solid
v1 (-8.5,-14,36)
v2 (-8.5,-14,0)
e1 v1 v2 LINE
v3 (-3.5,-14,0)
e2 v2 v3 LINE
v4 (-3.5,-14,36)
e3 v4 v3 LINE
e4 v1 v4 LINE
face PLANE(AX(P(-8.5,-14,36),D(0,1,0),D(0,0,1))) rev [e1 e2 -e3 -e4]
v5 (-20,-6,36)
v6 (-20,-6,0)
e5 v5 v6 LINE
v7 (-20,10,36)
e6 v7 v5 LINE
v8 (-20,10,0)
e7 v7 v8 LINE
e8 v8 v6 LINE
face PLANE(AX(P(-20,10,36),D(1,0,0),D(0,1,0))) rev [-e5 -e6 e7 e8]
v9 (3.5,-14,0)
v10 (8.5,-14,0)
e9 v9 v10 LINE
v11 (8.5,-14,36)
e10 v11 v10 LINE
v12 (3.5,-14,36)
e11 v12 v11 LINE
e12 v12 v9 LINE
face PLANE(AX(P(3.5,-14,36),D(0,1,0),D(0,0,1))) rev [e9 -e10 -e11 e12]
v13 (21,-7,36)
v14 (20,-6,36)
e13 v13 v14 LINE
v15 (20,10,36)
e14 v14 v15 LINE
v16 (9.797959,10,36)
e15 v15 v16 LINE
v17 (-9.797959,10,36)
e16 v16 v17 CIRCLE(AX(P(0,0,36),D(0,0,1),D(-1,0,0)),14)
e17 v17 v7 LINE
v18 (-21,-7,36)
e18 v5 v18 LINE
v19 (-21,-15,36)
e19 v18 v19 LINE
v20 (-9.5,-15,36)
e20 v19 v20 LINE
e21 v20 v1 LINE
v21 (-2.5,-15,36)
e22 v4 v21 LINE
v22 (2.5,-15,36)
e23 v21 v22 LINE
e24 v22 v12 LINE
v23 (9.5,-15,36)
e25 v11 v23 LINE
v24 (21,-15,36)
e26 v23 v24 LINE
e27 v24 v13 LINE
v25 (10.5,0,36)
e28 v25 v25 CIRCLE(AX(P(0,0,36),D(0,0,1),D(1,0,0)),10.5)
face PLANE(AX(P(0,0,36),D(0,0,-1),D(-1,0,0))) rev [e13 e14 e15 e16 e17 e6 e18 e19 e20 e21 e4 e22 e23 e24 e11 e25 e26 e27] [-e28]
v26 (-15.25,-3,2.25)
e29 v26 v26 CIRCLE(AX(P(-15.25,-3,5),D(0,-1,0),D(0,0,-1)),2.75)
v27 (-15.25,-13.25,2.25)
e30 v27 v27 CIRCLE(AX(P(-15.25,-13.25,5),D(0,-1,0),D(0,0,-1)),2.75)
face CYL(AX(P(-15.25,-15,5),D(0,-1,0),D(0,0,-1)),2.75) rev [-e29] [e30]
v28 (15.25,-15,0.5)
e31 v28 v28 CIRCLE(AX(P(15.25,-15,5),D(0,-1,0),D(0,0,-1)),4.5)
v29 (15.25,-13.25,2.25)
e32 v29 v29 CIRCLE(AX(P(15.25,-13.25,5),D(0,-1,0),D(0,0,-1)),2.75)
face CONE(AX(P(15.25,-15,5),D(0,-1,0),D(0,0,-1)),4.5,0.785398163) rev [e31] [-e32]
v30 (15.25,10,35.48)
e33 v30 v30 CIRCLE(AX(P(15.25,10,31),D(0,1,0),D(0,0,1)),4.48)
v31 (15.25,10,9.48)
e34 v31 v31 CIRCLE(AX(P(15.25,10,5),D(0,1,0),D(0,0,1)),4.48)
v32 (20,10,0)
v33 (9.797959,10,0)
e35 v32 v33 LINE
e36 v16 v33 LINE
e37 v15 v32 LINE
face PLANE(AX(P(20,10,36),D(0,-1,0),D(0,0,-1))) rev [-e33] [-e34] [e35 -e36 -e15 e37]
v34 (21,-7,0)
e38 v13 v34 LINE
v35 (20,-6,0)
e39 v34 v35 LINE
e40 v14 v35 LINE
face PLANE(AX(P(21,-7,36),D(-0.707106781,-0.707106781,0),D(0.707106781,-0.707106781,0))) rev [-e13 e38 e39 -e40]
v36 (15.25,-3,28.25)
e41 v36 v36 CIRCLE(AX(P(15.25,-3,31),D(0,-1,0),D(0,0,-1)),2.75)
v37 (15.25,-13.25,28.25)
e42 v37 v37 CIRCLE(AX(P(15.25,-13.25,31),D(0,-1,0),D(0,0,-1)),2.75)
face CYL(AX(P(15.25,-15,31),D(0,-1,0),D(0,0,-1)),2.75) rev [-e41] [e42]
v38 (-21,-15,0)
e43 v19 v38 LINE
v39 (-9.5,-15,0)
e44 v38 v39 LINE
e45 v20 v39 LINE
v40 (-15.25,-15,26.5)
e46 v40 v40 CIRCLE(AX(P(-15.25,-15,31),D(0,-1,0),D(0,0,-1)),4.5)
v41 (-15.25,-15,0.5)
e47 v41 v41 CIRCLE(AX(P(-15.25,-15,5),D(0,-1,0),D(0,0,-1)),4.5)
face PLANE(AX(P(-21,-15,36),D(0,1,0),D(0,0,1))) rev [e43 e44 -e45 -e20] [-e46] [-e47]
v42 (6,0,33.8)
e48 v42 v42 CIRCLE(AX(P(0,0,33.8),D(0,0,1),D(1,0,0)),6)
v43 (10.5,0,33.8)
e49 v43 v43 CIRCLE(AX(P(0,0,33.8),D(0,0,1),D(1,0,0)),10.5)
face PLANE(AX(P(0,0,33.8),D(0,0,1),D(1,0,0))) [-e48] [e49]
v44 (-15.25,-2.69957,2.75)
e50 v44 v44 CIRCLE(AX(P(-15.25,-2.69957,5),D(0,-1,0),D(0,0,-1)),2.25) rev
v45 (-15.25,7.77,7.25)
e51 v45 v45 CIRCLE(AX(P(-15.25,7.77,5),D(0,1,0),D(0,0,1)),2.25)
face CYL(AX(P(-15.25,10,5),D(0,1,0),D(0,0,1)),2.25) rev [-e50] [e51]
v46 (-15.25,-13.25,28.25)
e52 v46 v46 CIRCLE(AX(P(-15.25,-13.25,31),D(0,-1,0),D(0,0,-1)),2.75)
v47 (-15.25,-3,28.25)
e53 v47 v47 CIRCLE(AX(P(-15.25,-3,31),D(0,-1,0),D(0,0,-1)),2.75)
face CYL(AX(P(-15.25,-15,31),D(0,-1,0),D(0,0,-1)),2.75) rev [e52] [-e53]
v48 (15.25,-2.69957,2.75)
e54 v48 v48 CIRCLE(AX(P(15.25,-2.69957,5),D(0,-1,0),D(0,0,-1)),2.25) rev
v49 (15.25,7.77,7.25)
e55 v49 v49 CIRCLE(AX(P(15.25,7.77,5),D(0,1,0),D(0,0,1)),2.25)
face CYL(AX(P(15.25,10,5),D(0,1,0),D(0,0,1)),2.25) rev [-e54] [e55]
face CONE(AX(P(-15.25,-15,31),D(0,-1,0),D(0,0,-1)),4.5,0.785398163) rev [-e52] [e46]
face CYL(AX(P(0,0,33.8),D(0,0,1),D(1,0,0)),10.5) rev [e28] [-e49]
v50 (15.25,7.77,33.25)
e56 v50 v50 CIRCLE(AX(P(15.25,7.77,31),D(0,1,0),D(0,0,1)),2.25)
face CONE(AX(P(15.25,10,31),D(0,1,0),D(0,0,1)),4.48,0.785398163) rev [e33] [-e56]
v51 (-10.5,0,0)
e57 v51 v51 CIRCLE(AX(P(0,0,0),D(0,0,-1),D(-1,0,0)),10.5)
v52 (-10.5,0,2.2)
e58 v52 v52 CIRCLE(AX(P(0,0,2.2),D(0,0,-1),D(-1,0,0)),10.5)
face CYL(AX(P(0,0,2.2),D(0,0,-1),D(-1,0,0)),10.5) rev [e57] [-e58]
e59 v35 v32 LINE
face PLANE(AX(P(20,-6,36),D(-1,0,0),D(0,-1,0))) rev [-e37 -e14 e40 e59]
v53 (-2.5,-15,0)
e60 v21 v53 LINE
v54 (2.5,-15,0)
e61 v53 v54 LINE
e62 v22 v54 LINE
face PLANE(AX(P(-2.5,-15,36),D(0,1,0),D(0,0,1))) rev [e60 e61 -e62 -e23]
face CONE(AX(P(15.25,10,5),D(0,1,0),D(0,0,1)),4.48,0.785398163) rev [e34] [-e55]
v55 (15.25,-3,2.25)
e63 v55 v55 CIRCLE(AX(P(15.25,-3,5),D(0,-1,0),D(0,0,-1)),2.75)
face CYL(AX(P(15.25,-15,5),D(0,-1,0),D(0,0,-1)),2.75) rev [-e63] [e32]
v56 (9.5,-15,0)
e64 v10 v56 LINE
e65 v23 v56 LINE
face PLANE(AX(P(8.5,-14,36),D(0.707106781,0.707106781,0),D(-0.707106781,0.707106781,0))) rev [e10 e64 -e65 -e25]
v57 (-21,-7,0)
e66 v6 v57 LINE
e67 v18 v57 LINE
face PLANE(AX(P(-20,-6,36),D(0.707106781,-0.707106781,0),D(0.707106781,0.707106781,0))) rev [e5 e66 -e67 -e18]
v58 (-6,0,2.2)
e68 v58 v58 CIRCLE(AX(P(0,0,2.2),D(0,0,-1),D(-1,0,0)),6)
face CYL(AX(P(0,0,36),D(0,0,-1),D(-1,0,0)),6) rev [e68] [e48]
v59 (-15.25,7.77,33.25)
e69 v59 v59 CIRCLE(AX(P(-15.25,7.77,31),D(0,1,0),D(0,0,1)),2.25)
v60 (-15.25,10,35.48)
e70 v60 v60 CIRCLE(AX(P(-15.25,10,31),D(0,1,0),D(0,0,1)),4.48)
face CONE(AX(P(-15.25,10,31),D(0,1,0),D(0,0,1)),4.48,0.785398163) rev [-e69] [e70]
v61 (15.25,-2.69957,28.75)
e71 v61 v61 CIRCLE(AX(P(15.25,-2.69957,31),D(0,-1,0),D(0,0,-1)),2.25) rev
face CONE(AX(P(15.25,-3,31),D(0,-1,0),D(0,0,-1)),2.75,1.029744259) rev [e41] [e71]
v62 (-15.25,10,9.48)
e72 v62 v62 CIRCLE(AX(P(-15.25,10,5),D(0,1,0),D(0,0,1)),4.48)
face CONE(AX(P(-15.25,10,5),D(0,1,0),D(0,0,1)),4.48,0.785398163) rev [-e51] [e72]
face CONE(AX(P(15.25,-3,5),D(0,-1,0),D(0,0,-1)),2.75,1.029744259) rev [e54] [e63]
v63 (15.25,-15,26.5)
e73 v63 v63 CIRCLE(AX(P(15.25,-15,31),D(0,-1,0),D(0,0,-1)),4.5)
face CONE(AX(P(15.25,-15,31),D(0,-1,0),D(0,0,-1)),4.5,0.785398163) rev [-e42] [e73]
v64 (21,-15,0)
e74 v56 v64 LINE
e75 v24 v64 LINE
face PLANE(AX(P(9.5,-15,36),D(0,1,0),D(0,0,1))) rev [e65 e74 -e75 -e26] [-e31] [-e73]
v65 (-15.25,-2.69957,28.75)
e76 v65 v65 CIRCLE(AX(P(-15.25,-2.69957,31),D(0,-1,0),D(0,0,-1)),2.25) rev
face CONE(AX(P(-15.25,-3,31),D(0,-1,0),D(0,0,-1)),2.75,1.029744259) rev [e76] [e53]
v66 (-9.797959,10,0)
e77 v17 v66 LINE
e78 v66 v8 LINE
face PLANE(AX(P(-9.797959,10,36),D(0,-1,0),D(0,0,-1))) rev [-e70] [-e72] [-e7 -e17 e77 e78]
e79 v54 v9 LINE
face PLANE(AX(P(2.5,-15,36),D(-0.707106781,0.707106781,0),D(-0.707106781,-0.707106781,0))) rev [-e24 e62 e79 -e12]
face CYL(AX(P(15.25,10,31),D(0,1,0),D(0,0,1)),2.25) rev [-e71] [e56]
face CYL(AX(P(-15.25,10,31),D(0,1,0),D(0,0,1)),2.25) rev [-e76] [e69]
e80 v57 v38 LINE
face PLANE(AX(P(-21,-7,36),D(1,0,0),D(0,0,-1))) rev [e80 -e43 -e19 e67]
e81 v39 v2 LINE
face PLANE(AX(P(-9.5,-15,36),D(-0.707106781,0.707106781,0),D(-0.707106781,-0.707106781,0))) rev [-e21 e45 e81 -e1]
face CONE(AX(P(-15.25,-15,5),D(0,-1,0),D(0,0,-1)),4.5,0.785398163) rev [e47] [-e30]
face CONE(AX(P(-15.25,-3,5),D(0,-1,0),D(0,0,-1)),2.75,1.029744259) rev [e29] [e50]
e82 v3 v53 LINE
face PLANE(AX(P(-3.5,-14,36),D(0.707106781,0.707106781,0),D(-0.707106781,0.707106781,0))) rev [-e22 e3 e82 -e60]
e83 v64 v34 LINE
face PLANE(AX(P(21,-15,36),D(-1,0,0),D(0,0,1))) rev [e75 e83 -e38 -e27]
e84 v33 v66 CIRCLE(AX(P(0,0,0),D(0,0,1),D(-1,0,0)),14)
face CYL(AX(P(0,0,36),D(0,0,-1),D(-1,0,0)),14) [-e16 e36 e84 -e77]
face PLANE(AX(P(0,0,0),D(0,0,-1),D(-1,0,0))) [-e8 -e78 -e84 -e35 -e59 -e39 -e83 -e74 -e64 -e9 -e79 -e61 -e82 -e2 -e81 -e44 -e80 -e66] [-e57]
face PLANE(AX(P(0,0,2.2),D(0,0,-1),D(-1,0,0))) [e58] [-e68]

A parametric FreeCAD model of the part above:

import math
import FreeCAD as App
import Part
import Sketcher

V = App.Vector

doc = App.newDocument("Part")
params = doc.addObject("Spreadsheet::Sheet", "Params")
for row, (alias, value) in enumerate([
    ("sketch1_diameter", "12 mm"),
    ("sketch1_radius", "14 mm"),
    ("sketch1_width", "5 mm"),
    ("sketch1_height", "16 mm"),
    ("sketch1_height2", "8 mm"),
    ("pad1_length", "36 mm"),
    ("sketch2_diameter", "21 mm"),
    ("pocket1_length", "2.2 mm"),
    ("sketch3_diameter", "21 mm"),
    ("pocket2_length", "2.2 mm"),
    ("sketch4_diameter", "3.3 mm"),
    ("sketch5_diameter", "5.5 mm"),
    ("hole_diameter", "5.5 mm"),
    ("hole_depth", "12 mm"),
    ("hole_csink_diameter", "9 mm"),
    ("sketch6_diameter", "4.5 mm"),
    ("hole2_diameter", "4.5 mm"),
    ("hole2_csink_diameter", "8.96 mm"),
], start=1):
    params.set(f"A{row}", alias)
    params.set(f"B{row}", "=" + value)
    params.setAlias(f"B{row}", alias)

body = doc.addObject("PartDesign::Body", "Body")

# Sketch on XY plane
sketch1 = body.newObject("Sketcher::SketchObject", "Sketch")
sketch1.AttachmentSupport = (doc.getObject("XY_Plane"), [""])
sketch1.MapMode = "FlatFace"
sketch1.addGeometry([
    Part.LineSegment(V(-20, 10, 0), V(-20, -6, 0)),  # 0
    Part.LineSegment(V(-20, -6, 0), V(-21, -7, 0)),  # 1
    Part.LineSegment(V(-21, -7, 0), V(-21, -15, 0)),  # 2
    Part.LineSegment(V(-21, -15, 0), V(-9.5, -15, 0)),  # 3
    Part.LineSegment(V(-9.5, -15, 0), V(-8.5, -14, 0)),  # 4
    Part.LineSegment(V(-8.5, -14, 0), V(-3.5, -14, 0)),  # 5
    Part.LineSegment(V(-3.5, -14, 0), V(-2.5, -15, 0)),  # 6
    Part.LineSegment(V(-2.5, -15, 0), V(2.5, -15, 0)),  # 7
    Part.LineSegment(V(2.5, -15, 0), V(3.5, -14, 0)),  # 8
    Part.LineSegment(V(3.5, -14, 0), V(8.5, -14, 0)),  # 9
    Part.LineSegment(V(8.5, -14, 0), V(9.5, -15, 0)),  # 10
    Part.LineSegment(V(9.5, -15, 0), V(21, -15, 0)),  # 11
    Part.LineSegment(V(21, -15, 0), V(21, -7, 0)),  # 12
    Part.LineSegment(V(21, -7, 0), V(20, -6, 0)),  # 13
    Part.LineSegment(V(20, -6, 0), V(20, 10, 0)),  # 14
    Part.LineSegment(V(20, 10, 0), V(9.8, 10, 0)),  # 15
    Part.ArcOfCircle(Part.Circle(V(0, 0, 0), V(0, 0, 1), 14), math.radians(46), math.radians(134)),  # 16
    Part.LineSegment(V(-9.8, 10, 0), V(-20, 10, 0)),  # 17
    Part.Circle(V(0, 0, 0), V(0, 0, 1), 6),  # 18
], False)
sketch1.addConstraint([
    Sketcher.Constraint("Coincident", 0, 2, 1, 1),
    Sketcher.Constraint("Coincident", 1, 2, 2, 1),
    Sketcher.Constraint("Coincident", 2, 2, 3, 1),
    Sketcher.Constraint("Coincident", 3, 2, 4, 1),
    Sketcher.Constraint("Coincident", 4, 2, 5, 1),
    Sketcher.Constraint("Coincident", 5, 2, 6, 1),
    Sketcher.Constraint("Coincident", 6, 2, 7, 1),
    Sketcher.Constraint("Coincident", 7, 2, 8, 1),
    Sketcher.Constraint("Coincident", 8, 2, 9, 1),
    Sketcher.Constraint("Coincident", 9, 2, 10, 1),
    Sketcher.Constraint("Coincident", 10, 2, 11, 1),
    Sketcher.Constraint("Coincident", 11, 2, 12, 1),
    Sketcher.Constraint("Coincident", 12, 2, 13, 1),
    Sketcher.Constraint("Coincident", 13, 2, 14, 1),
    Sketcher.Constraint("Coincident", 14, 2, 15, 1),
    Sketcher.Constraint("Coincident", 15, 2, 16, 1),
    Sketcher.Constraint("Coincident", 16, 2, 17, 1),
    Sketcher.Constraint("Coincident", 17, 2, 0, 1),
    Sketcher.Constraint("Vertical", 0),
    Sketcher.Constraint("Vertical", 2),
    Sketcher.Constraint("Horizontal", 3),
    Sketcher.Constraint("Horizontal", 5),
    Sketcher.Constraint("Horizontal", 7),
    Sketcher.Constraint("Horizontal", 9),
    Sketcher.Constraint("Horizontal", 11),
    Sketcher.Constraint("Vertical", 12),
    Sketcher.Constraint("Vertical", 14),
    Sketcher.Constraint("Horizontal", 15),
    Sketcher.Constraint("Horizontal", 17),
    Sketcher.Constraint("Coincident", 16, 3, -1, 1),
    Sketcher.Constraint("Coincident", 18, 3, -1, 1),
    Sketcher.Constraint("Symmetric", 5, 2, 8, 2, -2),
    Sketcher.Constraint("Symmetric", 3, 2, 10, 2, -2),
    Sketcher.Constraint("Symmetric", 1, 2, 12, 2, -2),
    Sketcher.Constraint("Symmetric", 0, 2, 13, 2, -2),
    Sketcher.Constraint("Parallel", 1, 4),
    Sketcher.Constraint("Perpendicular", 4, 6),
    Sketcher.Constraint("Perpendicular", 6, 8),
    Sketcher.Constraint("Perpendicular", 8, 10),
    Sketcher.Constraint("Parallel", 10, 13),
    Sketcher.Constraint("Horizontal", 3, 2, 6, 2),
    Sketcher.Constraint("Horizontal", 15, 2, 16, 2),
    Sketcher.Constraint("Equal", 5, 7),
    Sketcher.Constraint("Equal", 1, 4),
    Sketcher.Constraint("Diameter", 18, 12.0),
    Sketcher.Constraint("Radius", 16, 14.0),
    Sketcher.Constraint("DistanceX", 5, 1, 5, 2, 5.0),
    Sketcher.Constraint("DistanceY", 0, 2, 0, 1, 16.0),
    Sketcher.Constraint("DistanceY", 2, 2, 2, 1, 8.0),
    Sketcher.Constraint("DistanceX", 3, 1, 3, 2, 11.5),
    Sketcher.Constraint("DistanceX", 0, 2, -1, 1, 20.0),
    Sketcher.Constraint("DistanceY", 0, 2, -1, 1, 6.0),
])
sketch1.setExpression("Constraints[44]", "Params.sketch1_diameter")
sketch1.setExpression("Constraints[45]", "Params.sketch1_radius")
sketch1.setExpression("Constraints[46]", "Params.sketch1_width")
sketch1.setExpression("Constraints[47]", "Params.sketch1_height")
sketch1.setExpression("Constraints[48]", "Params.sketch1_height2")
pad1 = body.newObject("PartDesign::Pad", "Pad")
pad1.Profile = sketch1
pad1.setExpression("Length", "Params.pad1_length")

# Sketch on XY plane
sketch2 = body.newObject("Sketcher::SketchObject", "Sketch001")
sketch2.AttachmentSupport = (doc.getObject("XY_Plane"), [""])
sketch2.MapMode = "FlatFace"
sketch2.AttachmentOffset = App.Placement(V(0, 0, 36), App.Rotation())
sketch2.addGeometry(Part.Circle(V(0, 0, 0), V(0, 0, 1), 10), False)
sketch2.addConstraint([
    Sketcher.Constraint("Coincident", 0, 3, -1, 1),
    Sketcher.Constraint("Diameter", 0, 21.0),
])
sketch2.setExpression("Constraints[1]", "Params.sketch2_diameter")
pocket1 = body.newObject("PartDesign::Pocket", "Pocket")
pocket1.Profile = sketch2
pocket1.setExpression("Length", "Params.pocket1_length")

# Sketch on XY plane
sketch3 = body.newObject("Sketcher::SketchObject", "Sketch002")
sketch3.AttachmentSupport = (doc.getObject("XY_Plane"), [""])
sketch3.MapMode = "FlatFace"
sketch3.addGeometry(Part.Circle(V(0, 0, 0), V(0, 0, 1), 10), False)
sketch3.addConstraint([
    Sketcher.Constraint("Coincident", 0, 3, -1, 1),
    Sketcher.Constraint("Diameter", 0, 21.0),
])
sketch3.setExpression("Constraints[1]", "Params.sketch3_diameter")
pocket2 = body.newObject("PartDesign::Pocket", "Pocket001")
pocket2.Profile = sketch3
pocket2.setExpression("Length", "Params.pocket2_length")
pocket2.Reversed = True

# Sketch on XZ plane
sketch4 = body.newObject("Sketcher::SketchObject", "Sketch003")
sketch4.AttachmentSupport = (doc.getObject("XZ_Plane"), [""])
sketch4.MapMode = "FlatFace"
sketch4.AttachmentOffset = App.Placement(V(0, 0, -10), App.Rotation())
sketch4.addGeometry([
    Part.Circle(V(15.2, 5, 0), V(0, 0, 1), 1.6),
    Part.Circle(V(15.2, 31, 0), V(0, 0, 1), 1.6),
    Part.Circle(V(-15.2, 5, 0), V(0, 0, 1), 1.6),
    Part.Circle(V(-15.2, 31, 0), V(0, 0, 1), 1.6),
], False)
sketch4.addConstraint([
    Sketcher.Constraint("Equal", 0, 1),
    Sketcher.Constraint("Equal", 1, 2),
    Sketcher.Constraint("Equal", 2, 3),
    Sketcher.Constraint("Symmetric", 0, 3, 2, 3, -2),
    Sketcher.Constraint("Symmetric", 1, 3, 3, 3, -2),
    Sketcher.Constraint("Vertical", 0, 3, 1, 3),
    Sketcher.Constraint("Diameter", 0, 3.3),
    Sketcher.Constraint("DistanceY", -1, 1, 0, 3, 5.0),
    Sketcher.Constraint("DistanceY", -1, 1, 1, 3, 31.0),
    Sketcher.Constraint("DistanceX", 2, 3, 0, 3, 30.5),
])
sketch4.setExpression("Constraints[6]", "Params.sketch4_diameter")
pocket3 = body.newObject("PartDesign::Pocket", "Pocket002")
pocket3.Profile = sketch4
pocket3.Type = "ThroughAll"
pocket3.Reversed = True

# Sketch on XZ plane
sketch5 = body.newObject("Sketcher::SketchObject", "Sketch004")
sketch5.AttachmentSupport = (doc.getObject("XZ_Plane"), [""])
sketch5.MapMode = "FlatFace"
sketch5.AttachmentOffset = App.Placement(V(0, 0, 15), App.Rotation())
sketch5.addGeometry([
    Part.Circle(V(-15.2, 31, 0), V(0, 0, 1), 2.8),
    Part.Circle(V(-15.2, 5, 0), V(0, 0, 1), 2.8),
    Part.Circle(V(15.2, 5, 0), V(0, 0, 1), 2.8),
    Part.Circle(V(15.2, 31, 0), V(0, 0, 1), 2.8),
], False)
sketch5.addConstraint([
    Sketcher.Constraint("Equal", 0, 1),
    Sketcher.Constraint("Equal", 1, 2),
    Sketcher.Constraint("Equal", 2, 3),
    Sketcher.Constraint("Symmetric", 1, 3, 2, 3, -2),
    Sketcher.Constraint("Symmetric", 0, 3, 3, 3, -2),
    Sketcher.Constraint("Vertical", 0, 3, 1, 3),
    Sketcher.Constraint("Diameter", 0, 5.5),
    Sketcher.Constraint("DistanceY", -1, 1, 0, 3, 31.0),
    Sketcher.Constraint("DistanceY", -1, 1, 1, 3, 5.0),
    Sketcher.Constraint("DistanceX", 1, 3, 2, 3, 30.5),
])
sketch5.setExpression("Constraints[6]", "Params.sketch5_diameter")
doc.recompute()
hole = body.newObject("PartDesign::Hole", "Hole")
hole.Profile = sketch5
hole.ThreadType = "None"
hole.setExpression("Diameter", "Params.hole_diameter")
hole.DepthType = "Dimension"
hole.setExpression("Depth", "Params.hole_depth")
hole.DrillPoint = "Angled"
hole.DrillPointAngle = 118
hole.HoleCutType = "Countersink"
hole.setExpression("HoleCutDiameter", "Params.hole_csink_diameter")
hole.HoleCutCountersinkAngle = 90

# Sketch on XZ plane
sketch6 = body.newObject("Sketcher::SketchObject", "Sketch005")
sketch6.AttachmentSupport = (doc.getObject("XZ_Plane"), [""])
sketch6.MapMode = "FlatFace"
sketch6.AttachmentOffset = App.Placement(V(0, 0, -10), App.Rotation())
sketch6.addGeometry([
    Part.Circle(V(-15.2, 5, 0), V(0, 0, 1), 2.2),
    Part.Circle(V(-15.2, 31, 0), V(0, 0, 1), 2.2),
    Part.Circle(V(15.2, 31, 0), V(0, 0, 1), 2.2),
    Part.Circle(V(15.2, 5, 0), V(0, 0, 1), 2.2),
], False)
sketch6.addConstraint([
    Sketcher.Constraint("Equal", 0, 1),
    Sketcher.Constraint("Equal", 1, 2),
    Sketcher.Constraint("Equal", 2, 3),
    Sketcher.Constraint("Symmetric", 1, 3, 2, 3, -2),
    Sketcher.Constraint("Symmetric", 0, 3, 3, 3, -2),
    Sketcher.Constraint("Vertical", 0, 3, 1, 3),
    Sketcher.Constraint("Diameter", 0, 4.5),
    Sketcher.Constraint("DistanceY", -1, 1, 0, 3, 5.0),
    Sketcher.Constraint("DistanceY", -1, 1, 1, 3, 31.0),
    Sketcher.Constraint("DistanceX", 1, 3, 2, 3, 30.5),
])
sketch6.setExpression("Constraints[6]", "Params.sketch6_diameter")
doc.recompute()
hole2 = body.newObject("PartDesign::Hole", "Hole001")
hole2.Profile = sketch6
hole2.ThreadType = "None"
hole2.setExpression("Diameter", "Params.hole2_diameter")
hole2.DepthType = "ThroughAll"
hole2.HoleCutType = "Countersink"
hole2.setExpression("HoleCutDiameter", "Params.hole2_csink_diameter")
hole2.HoleCutCountersinkAngle = 90
hole2.Reversed = True

doc.recompute()
